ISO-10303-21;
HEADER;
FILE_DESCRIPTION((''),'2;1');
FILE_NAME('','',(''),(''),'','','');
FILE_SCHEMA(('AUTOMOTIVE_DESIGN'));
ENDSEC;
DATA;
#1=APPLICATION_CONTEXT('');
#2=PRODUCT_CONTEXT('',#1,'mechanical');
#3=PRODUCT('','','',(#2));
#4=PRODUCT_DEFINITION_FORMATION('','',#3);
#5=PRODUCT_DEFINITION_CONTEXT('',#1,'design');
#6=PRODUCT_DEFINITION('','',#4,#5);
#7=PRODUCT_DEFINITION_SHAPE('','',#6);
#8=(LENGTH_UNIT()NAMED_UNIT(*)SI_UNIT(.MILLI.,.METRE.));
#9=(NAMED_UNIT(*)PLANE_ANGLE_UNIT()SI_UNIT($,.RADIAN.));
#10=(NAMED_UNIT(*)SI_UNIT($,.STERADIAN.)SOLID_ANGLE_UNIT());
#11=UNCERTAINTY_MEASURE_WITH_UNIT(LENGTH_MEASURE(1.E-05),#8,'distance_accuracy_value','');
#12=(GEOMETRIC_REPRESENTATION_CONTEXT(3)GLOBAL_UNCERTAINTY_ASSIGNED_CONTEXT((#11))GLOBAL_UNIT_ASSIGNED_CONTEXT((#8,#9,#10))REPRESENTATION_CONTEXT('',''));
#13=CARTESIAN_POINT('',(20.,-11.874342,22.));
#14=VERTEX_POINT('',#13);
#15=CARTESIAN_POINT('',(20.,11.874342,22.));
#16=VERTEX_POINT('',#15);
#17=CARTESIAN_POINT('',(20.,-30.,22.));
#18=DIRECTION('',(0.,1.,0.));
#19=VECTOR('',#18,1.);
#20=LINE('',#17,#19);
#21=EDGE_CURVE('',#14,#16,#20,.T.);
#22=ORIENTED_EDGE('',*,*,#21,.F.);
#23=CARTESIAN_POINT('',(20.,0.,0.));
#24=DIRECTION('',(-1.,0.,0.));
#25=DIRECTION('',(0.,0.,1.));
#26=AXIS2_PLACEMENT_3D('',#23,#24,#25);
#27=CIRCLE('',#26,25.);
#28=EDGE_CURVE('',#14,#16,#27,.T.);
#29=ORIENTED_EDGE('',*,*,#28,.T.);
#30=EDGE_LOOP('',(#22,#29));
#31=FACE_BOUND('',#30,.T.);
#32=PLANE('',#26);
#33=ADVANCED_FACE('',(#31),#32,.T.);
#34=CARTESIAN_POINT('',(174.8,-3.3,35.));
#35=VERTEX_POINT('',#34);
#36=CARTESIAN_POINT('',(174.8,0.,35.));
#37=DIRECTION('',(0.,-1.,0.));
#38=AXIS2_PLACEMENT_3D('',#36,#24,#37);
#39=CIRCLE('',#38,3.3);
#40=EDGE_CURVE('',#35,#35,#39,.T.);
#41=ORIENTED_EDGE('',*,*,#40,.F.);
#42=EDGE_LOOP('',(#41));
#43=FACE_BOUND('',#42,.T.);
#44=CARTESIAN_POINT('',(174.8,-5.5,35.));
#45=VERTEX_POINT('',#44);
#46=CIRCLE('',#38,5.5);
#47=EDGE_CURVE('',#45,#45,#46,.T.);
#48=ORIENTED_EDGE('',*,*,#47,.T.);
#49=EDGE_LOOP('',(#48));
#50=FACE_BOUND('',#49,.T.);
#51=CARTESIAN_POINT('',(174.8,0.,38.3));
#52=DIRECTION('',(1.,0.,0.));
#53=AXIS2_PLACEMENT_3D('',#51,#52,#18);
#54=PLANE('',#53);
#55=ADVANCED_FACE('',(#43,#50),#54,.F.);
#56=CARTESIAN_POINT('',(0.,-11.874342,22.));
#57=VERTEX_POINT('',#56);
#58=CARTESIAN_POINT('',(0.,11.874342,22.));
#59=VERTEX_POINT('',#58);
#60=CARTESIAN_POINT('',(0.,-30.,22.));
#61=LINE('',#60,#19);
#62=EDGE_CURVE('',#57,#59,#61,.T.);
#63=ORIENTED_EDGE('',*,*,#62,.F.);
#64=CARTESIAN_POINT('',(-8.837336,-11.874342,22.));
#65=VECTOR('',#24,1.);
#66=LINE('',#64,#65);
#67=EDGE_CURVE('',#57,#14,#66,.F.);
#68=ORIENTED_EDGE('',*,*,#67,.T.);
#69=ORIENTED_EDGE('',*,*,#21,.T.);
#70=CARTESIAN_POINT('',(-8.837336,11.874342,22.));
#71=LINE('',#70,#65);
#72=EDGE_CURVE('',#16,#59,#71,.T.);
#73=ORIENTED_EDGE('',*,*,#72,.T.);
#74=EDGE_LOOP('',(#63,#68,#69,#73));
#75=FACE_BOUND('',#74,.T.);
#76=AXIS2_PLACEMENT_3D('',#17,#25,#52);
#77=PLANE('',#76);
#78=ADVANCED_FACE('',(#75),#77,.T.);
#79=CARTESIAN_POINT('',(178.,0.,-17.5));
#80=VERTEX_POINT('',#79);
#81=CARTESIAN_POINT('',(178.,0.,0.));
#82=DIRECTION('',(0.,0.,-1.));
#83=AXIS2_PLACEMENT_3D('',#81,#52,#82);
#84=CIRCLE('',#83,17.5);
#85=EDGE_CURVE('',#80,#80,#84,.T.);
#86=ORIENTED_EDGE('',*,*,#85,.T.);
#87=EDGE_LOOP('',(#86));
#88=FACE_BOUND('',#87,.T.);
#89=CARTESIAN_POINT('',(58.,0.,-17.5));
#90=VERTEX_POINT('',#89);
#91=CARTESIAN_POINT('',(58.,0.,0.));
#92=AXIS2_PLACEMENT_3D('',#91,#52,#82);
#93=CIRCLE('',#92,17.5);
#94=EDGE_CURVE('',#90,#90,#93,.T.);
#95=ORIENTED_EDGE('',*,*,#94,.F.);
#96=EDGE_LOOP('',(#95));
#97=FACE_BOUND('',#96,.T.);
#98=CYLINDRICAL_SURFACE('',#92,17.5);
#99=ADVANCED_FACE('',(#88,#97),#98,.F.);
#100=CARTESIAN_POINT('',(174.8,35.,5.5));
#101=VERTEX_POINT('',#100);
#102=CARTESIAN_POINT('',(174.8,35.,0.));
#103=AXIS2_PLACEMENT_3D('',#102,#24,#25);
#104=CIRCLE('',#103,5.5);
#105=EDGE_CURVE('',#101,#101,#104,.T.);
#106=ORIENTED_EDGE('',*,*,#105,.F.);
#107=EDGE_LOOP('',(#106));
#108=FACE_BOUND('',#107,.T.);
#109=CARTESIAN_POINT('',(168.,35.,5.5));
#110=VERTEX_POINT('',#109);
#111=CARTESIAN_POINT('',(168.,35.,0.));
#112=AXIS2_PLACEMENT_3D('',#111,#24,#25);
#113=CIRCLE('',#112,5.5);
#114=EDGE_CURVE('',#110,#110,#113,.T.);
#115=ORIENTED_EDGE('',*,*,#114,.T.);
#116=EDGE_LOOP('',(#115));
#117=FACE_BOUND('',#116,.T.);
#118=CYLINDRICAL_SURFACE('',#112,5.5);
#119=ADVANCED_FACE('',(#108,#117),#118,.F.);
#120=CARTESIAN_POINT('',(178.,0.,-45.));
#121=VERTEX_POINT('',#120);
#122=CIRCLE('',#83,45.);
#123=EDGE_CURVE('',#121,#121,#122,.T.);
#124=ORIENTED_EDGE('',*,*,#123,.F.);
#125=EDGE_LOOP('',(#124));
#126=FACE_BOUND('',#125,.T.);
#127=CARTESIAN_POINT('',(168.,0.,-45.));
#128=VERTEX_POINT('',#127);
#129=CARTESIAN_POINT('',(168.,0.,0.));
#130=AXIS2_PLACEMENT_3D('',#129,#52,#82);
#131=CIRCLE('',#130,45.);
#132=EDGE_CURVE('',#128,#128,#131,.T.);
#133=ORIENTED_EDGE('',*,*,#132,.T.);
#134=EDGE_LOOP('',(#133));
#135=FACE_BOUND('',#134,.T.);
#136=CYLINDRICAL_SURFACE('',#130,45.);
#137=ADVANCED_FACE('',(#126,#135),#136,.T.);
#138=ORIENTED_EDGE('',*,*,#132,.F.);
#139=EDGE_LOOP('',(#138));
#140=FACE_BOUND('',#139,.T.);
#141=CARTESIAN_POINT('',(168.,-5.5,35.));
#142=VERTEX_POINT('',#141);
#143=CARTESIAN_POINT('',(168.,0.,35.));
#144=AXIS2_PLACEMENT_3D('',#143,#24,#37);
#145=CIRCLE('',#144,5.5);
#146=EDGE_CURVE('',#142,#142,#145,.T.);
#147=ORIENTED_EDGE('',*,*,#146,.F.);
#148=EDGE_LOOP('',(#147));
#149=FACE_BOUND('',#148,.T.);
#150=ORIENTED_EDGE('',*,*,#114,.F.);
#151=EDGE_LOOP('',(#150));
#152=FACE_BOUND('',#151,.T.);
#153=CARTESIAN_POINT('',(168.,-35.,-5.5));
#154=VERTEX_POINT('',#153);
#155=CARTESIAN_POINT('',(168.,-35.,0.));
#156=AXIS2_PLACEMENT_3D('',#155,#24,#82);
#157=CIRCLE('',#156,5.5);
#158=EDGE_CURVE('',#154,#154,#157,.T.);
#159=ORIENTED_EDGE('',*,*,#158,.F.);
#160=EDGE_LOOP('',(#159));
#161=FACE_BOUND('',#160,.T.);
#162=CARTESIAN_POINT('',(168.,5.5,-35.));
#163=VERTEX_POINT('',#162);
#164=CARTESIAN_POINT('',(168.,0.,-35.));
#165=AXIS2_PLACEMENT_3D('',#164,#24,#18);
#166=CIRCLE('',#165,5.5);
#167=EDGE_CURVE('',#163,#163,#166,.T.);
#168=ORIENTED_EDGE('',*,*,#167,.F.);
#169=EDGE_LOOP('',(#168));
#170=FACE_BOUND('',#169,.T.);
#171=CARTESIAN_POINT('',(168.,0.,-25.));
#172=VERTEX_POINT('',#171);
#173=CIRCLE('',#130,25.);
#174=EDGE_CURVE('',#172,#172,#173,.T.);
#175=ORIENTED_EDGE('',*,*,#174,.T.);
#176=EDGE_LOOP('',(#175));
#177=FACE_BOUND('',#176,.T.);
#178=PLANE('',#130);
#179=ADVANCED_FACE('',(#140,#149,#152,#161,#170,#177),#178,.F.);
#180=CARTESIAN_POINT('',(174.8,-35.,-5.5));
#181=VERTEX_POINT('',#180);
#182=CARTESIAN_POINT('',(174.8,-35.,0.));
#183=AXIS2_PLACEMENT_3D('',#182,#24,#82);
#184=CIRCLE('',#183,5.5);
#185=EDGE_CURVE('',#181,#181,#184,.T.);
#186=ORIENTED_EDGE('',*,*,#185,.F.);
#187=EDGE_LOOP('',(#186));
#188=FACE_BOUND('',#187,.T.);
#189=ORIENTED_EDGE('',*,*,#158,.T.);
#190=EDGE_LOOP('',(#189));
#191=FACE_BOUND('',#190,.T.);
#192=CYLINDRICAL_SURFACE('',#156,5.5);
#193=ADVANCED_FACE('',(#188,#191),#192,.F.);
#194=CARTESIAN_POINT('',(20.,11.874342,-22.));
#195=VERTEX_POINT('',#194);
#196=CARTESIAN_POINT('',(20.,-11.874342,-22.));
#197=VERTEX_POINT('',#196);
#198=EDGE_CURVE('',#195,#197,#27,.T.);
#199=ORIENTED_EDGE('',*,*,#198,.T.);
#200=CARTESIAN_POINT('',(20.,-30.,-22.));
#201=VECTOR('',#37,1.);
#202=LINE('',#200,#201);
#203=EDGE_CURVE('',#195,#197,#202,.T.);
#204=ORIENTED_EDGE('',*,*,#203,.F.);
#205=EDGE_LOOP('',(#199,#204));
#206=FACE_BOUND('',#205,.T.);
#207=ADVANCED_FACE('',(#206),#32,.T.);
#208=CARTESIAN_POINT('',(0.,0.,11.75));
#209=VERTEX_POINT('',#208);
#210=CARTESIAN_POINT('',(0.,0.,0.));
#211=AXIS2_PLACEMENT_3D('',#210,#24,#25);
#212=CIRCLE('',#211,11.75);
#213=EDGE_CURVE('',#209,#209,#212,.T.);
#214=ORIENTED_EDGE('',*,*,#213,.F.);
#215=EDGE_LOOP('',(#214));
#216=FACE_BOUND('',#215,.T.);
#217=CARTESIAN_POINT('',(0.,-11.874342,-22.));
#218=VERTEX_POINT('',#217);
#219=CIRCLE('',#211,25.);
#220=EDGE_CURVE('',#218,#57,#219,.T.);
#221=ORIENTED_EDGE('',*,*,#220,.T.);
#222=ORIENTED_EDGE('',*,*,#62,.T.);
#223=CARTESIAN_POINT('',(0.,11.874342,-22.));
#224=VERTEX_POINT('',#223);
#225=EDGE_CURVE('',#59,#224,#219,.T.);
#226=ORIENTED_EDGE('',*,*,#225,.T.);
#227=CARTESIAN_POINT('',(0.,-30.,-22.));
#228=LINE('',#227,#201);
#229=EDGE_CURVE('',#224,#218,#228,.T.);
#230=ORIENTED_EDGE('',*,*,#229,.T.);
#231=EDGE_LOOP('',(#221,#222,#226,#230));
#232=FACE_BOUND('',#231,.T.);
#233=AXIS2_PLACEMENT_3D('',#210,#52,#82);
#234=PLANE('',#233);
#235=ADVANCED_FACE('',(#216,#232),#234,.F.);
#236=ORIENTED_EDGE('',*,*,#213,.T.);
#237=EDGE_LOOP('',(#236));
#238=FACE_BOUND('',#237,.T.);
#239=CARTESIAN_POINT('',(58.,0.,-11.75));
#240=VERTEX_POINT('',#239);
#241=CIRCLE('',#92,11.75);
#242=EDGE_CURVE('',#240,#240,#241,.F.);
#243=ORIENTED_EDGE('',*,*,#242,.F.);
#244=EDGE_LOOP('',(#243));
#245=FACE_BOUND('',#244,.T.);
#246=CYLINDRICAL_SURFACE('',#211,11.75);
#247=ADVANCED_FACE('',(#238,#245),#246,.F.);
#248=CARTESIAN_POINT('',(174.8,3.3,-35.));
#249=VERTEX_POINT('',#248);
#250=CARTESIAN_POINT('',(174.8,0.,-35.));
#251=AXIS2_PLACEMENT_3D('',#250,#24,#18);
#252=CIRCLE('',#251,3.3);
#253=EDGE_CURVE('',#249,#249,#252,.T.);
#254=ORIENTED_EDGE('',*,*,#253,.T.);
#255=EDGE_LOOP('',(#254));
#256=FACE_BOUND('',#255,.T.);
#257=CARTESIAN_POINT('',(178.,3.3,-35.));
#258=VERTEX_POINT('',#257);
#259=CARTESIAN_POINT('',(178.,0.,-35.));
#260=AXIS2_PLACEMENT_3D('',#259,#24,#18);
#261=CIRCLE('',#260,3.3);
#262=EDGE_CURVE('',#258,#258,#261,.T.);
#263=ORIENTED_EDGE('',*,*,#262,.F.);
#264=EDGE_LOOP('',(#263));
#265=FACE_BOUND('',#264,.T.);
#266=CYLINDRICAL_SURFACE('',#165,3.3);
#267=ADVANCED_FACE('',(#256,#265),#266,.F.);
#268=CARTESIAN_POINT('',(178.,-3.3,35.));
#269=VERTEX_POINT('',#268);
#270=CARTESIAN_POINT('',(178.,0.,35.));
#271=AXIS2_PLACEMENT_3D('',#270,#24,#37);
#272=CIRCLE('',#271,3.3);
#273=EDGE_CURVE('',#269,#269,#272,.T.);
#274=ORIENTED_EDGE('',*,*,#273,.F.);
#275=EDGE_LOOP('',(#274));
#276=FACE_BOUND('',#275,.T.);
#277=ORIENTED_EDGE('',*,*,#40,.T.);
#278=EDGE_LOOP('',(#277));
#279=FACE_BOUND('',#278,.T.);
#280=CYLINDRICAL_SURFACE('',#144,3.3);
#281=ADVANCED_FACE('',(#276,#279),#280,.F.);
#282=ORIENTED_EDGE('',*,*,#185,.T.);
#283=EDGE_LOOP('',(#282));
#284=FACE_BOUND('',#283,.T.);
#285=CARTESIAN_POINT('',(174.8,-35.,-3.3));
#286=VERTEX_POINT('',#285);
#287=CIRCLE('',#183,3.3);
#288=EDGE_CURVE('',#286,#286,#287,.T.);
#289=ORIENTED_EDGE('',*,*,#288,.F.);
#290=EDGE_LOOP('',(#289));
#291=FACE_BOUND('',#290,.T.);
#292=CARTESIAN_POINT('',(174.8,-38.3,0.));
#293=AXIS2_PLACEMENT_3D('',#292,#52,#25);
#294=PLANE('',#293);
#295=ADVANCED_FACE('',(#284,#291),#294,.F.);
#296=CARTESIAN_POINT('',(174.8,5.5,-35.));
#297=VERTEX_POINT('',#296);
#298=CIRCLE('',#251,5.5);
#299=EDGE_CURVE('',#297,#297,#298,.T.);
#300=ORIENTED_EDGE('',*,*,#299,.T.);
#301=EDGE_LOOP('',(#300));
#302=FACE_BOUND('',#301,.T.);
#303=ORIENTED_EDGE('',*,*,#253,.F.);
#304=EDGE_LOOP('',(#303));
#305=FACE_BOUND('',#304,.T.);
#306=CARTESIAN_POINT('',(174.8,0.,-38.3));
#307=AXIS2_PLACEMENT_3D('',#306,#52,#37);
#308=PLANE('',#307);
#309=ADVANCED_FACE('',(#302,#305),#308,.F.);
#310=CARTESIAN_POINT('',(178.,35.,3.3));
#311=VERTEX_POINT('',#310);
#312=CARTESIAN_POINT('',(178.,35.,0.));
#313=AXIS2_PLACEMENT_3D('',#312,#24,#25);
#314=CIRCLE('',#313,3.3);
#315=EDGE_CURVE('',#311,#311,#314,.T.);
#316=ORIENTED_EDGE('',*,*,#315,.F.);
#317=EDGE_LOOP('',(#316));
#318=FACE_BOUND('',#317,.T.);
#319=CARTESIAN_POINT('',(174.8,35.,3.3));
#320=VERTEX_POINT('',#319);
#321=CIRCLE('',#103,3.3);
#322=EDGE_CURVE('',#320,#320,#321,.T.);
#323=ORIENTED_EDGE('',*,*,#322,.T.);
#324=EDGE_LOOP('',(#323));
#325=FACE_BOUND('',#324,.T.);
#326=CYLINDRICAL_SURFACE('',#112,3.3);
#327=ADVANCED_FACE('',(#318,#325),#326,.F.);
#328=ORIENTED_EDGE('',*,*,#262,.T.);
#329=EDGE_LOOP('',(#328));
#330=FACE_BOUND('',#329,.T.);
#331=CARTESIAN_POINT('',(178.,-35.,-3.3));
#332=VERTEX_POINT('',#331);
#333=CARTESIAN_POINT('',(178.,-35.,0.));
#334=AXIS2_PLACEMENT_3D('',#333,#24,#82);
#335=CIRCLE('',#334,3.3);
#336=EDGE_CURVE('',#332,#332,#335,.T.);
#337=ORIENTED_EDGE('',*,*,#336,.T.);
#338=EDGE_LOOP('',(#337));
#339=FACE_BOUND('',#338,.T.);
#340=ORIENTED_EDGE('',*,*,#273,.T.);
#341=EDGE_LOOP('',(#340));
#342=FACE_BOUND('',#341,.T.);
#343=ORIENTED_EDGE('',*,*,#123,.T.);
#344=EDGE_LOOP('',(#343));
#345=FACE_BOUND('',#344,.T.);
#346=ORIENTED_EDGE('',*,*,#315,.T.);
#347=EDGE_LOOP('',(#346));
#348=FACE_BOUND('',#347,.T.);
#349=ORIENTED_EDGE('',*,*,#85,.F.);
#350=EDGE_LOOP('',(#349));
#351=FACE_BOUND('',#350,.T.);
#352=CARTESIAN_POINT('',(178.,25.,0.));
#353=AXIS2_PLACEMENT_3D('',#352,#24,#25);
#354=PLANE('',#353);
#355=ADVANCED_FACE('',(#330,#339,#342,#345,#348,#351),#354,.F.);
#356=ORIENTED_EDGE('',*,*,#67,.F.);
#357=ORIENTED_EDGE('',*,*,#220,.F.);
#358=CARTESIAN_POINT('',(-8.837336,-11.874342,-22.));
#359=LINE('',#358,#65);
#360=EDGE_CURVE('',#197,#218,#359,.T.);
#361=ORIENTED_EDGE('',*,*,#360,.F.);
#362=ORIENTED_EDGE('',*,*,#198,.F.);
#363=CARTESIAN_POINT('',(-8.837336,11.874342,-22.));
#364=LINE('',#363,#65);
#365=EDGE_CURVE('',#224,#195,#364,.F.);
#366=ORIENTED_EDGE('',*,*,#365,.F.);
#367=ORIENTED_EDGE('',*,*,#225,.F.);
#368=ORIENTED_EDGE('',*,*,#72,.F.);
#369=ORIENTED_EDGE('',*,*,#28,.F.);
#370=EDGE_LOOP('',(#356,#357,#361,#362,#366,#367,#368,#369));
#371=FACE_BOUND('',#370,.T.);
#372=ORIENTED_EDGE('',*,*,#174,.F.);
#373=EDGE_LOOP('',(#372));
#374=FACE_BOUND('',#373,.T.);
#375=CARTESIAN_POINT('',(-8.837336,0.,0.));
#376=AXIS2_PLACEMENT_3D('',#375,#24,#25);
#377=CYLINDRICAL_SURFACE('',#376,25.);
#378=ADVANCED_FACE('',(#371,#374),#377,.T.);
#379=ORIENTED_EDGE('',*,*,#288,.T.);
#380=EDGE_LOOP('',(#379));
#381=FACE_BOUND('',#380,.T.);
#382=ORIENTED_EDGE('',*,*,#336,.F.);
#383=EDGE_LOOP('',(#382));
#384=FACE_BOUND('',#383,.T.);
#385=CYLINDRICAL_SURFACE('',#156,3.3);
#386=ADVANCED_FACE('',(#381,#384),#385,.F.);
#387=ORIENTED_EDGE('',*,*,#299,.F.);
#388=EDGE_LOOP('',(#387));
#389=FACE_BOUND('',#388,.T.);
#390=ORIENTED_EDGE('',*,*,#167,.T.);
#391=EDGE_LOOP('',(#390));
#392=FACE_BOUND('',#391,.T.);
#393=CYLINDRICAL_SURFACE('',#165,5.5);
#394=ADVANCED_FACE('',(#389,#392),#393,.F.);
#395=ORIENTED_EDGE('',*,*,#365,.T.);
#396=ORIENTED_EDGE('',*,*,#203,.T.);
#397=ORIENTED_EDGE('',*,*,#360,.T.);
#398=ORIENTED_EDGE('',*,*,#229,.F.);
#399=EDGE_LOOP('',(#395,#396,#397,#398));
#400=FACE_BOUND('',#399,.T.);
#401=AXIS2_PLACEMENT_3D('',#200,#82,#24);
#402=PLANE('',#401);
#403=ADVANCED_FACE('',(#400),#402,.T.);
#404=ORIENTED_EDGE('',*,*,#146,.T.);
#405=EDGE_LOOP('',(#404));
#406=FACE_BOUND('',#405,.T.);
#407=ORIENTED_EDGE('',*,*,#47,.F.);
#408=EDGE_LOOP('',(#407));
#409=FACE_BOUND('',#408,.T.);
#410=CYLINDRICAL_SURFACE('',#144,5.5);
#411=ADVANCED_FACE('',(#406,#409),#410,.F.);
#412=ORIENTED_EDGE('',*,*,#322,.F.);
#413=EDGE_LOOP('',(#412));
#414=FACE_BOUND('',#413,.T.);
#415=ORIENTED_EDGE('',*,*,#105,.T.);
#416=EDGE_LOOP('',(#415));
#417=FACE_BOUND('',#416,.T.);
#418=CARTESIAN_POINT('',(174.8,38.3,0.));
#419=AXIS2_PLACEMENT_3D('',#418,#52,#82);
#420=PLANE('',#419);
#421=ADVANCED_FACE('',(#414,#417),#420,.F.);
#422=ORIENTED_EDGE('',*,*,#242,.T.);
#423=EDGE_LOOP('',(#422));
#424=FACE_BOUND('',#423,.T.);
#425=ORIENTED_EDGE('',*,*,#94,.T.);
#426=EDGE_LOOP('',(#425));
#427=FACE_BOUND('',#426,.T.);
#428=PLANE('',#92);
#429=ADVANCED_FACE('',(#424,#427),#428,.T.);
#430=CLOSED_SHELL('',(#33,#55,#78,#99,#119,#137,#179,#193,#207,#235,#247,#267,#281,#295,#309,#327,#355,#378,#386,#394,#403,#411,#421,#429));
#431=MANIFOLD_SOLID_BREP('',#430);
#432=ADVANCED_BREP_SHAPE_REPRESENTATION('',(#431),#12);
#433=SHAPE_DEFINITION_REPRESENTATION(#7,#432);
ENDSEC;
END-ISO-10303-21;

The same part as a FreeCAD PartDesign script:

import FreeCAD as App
import Part
import Sketcher

V = App.Vector


def add_polygon(sketch, points):
    """Adds a closed chain of lines whose ends are joined by coincident constraints."""
    first, n = sketch.GeometryCount, len(points)
    for a, b in zip(points, points[1:] + points[:1]):
        sketch.addGeometry(Part.LineSegment(App.Vector(*a, 0), App.Vector(*b, 0)), False)
    for i in range(n):
        sketch.addConstraint(Sketcher.Constraint("Coincident", first + i, 2, first + (i + 1) % n, 1))

doc = App.newDocument("Part")
body = doc.addObject("PartDesign::Body", "Body")

# Sketch on XY plane
sketch1 = body.newObject("Sketcher::SketchObject", "Sketch")
sketch1.AttachmentSupport = (doc.getObject("XY_Plane"), [""])
sketch1.MapMode = "FlatFace"
add_polygon(sketch1, [(0, 25), (0, 0), (178, 0), (178, 25)])  # lines 0-3
sketch1.addConstraint([
    Sketcher.Constraint("Vertical", 0),
    Sketcher.Constraint("Horizontal", 1),
    Sketcher.Constraint("Vertical", 2),
    Sketcher.Constraint("Horizontal", 3),
    Sketcher.Constraint("Coincident", 0, 2, -1, 1),
    Sketcher.Constraint("DistanceX", 1, 1, 1, 2, 178.0),
    Sketcher.Constraint("DistanceY", 0, 2, 0, 1, 25.0),
])
revolution = body.newObject("PartDesign::Revolution", "Revolution")
revolution.Profile = sketch1
revolution.ReferenceAxis = (sketch1, ["H_Axis"])
revolution.Angle = 360

# Sketch on YZ plane
sketch2 = body.newObject("Sketcher::SketchObject", "Sketch001")
sketch2.AttachmentSupport = (doc.getObject("YZ_Plane"), [""])
sketch2.MapMode = "FlatFace"
add_polygon(sketch2, [(45.153, -45.153), (-45.153, -45.153), (-45.153, 45.153), (45.153, 45.153)])  # lines 0-3
add_polygon(sketch2, [(-30, 22), (-30, -22), (30, -22), (30, 22)])  # lines 4-7
sketch2.addConstraint([
    Sketcher.Constraint("Horizontal", 0),
    Sketcher.Constraint("Vertical", 1),
    Sketcher.Constraint("Horizontal", 2),
    Sketcher.Constraint("Vertical", 3),
    Sketcher.Constraint("Vertical", 4),
    Sketcher.Constraint("Horizontal", 5),
    Sketcher.Constraint("Vertical", 6),
    Sketcher.Constraint("Horizontal", 7),
    Sketcher.Constraint("Symmetric", 0, 2, 2, 2, -1, 1),
    Sketcher.Constraint("Symmetric", 4, 2, 6, 2, -1, 1),
    Sketcher.Constraint("Equal", 2, 1),
    Sketcher.Constraint("DistanceX", 5, 1, 5, 2, 60.0),
    Sketcher.Constraint("DistanceY", 4, 2, 4, 1, 44.0),
    Sketcher.Constraint("DistanceX", 0, 2, 0, 1, 90.306),
])
pocket1 = body.newObject("PartDesign::Pocket", "Pocket")
pocket1.Profile = sketch2
pocket1.Length = 20
pocket1.Reversed = True

# Sketch on YZ plane
sketch3 = body.newObject("Sketcher::SketchObject", "Sketch002")
sketch3.AttachmentSupport = (doc.getObject("YZ_Plane"), [""])
sketch3.MapMode = "FlatFace"
sketch3.addGeometry(Part.Circle(V(0, 0, 0), V(0, 0, 1), 11.75), False)
sketch3.addConstraint([
    Sketcher.Constraint("Coincident", 0, 3, -1, 1),
    Sketcher.Constraint("Diameter", 0, 23.5),
])
doc.recompute()
hole = body.newObject("PartDesign::Hole", "Hole")
hole.Profile = sketch3
hole.ThreadType = "None"
hole.Diameter = 23.5
hole.DepthType = "ThroughAll"
hole.Reversed = True

# Sketch on YZ plane
sketch4 = body.newObject("Sketcher::SketchObject", "Sketch003")
sketch4.AttachmentSupport = (doc.getObject("YZ_Plane"), [""])
sketch4.MapMode = "FlatFace"
sketch4.AttachmentOffset = App.Placement(V(0, 0, 178), App.Rotation())
sketch4.addGeometry([
    Part.Circle(V(0, 0, 0), V(0, 0, 1), 45),
    Part.Circle(V(0, 0, 0), V(0, 0, 1), 25),
], False)
sketch4.addConstraint([
    Sketcher.Constraint("Coincident", 0, 3, -1, 1),
    Sketcher.Constraint("Coincident", 1, 3, -1, 1),
    Sketcher.Constraint("Diameter", 0, 90.0),
    Sketcher.Constraint("Diameter", 1, 50.0),
])
pad1 = body.newObject("PartDesign::Pad", "Pad")
pad1.Profile = sketch4
pad1.Length = 10
pad1.Reversed = True

# Sketch on YZ plane
sketch5 = body.newObject("Sketcher::SketchObject", "Sketch004")
sketch5.AttachmentSupport = (doc.getObject("YZ_Plane"), [""])
sketch5.MapMode = "FlatFace"
sketch5.AttachmentOffset = App.Placement(V(0, 0, 168), App.Rotation())
sketch5.addGeometry(Part.Circle(V(35, 0, 0), V(0, 0, 1), 3.3), False)
sketch5.addConstraint([
    Sketcher.Constraint("PointOnObject", 0, 3, -1),
    Sketcher.Constraint("Diameter", 0, 6.6),
    Sketcher.Constraint("DistanceX", -1, 1, 0, 3, 35.0),
])
doc.recompute()
hole2 = body.newObject("PartDesign::Hole", "Hole001")
hole2.Profile = sketch5
hole2.ThreadType = "None"
hole2.Diameter = 6.6
hole2.DepthType = "ThroughAll"
hole2.HoleCutType = "Counterbore"
hole2.HoleCutDiameter = 11
hole2.HoleCutDepth = 6.8
hole2.Reversed = True
doc.recompute()

polarpattern = body.newObject("PartDesign::PolarPattern", "PolarPattern")
polarpattern.Originals = [hole2]
polarpattern.Axis = (doc.getObject("X_Axis"), [""])
polarpattern.Angle = 360
polarpattern.Occurrences = 4
body.Tip = polarpattern

# Sketch on YZ plane
sketch6 = body.newObject("Sketcher::SketchObject", "Sketch005")
sketch6.AttachmentSupport = (doc.getObject("YZ_Plane"), [""])
sketch6.MapMode = "FlatFace"
sketch6.AttachmentOffset = App.Placement(V(0, 0, 178), App.Rotation())
sketch6.addGeometry(Part.Circle(V(0, 0, 0), V(0, 0, 1), 17.5), False)
sketch6.addConstraint([
    Sketcher.Constraint("Coincident", 0, 3, -1, 1),
    Sketcher.Constraint("Diameter", 0, 35.0),
])
pocket2 = body.newObject("PartDesign::Pocket", "Pocket001")
pocket2.Profile = sketch6
pocket2.Length = 120

doc.recompute()
